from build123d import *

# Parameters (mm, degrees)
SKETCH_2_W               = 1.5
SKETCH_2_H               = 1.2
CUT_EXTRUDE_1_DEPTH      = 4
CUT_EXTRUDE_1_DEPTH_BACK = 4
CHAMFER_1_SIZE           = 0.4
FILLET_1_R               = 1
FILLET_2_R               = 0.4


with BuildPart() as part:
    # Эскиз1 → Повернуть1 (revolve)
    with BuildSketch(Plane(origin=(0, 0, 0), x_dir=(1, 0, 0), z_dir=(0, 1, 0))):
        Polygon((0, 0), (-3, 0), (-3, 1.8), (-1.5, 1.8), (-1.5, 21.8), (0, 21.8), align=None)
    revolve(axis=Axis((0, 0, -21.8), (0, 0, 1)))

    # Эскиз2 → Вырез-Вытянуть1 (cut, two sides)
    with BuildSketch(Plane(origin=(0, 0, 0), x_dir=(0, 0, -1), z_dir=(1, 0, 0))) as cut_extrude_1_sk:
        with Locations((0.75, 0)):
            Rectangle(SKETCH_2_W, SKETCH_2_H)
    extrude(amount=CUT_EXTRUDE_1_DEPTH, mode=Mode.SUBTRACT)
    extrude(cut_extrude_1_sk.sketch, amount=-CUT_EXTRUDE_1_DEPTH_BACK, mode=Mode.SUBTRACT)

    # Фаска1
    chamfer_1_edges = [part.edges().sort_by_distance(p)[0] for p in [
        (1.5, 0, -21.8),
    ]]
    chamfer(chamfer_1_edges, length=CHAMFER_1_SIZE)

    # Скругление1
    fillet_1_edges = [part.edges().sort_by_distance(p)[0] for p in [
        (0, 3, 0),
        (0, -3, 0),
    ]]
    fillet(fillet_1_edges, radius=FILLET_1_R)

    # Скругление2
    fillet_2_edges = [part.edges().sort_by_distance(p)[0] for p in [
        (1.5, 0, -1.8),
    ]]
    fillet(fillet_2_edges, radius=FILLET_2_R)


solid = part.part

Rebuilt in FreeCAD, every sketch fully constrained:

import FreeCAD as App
import Part
import Sketcher
from FreeCAD import Vector
Q = App.Units.Quantity


def edges_at(feature, points):
    """Names of the edges that pass closest to the given points."""
    edges = feature.Shape.Edges
    near = lambda p: min(range(len(edges)), key=lambda i: edges[i].distToShape(Part.Vertex(*p))[0])
    return sorted({f"Edge{near(p) + 1}" for p in points})


def add_polygon(sketch, points):
    """Adds a closed chain of lines whose ends are joined by coincident constraints."""
    first, n = sketch.GeometryCount, len(points)
    for a, b in zip(points, points[1:] + points[:1]):
        sketch.addGeometry(Part.LineSegment(App.Vector(*a, 0), App.Vector(*b, 0)), False)
    for i in range(n):
        sketch.addConstraint(Sketcher.Constraint("Coincident", first + i, 2, first + (i + 1) % n, 1))

doc = App.newDocument("Part")
body = doc.addObject("PartDesign::Body", "Body")

sketch1 = body.newObject("Sketcher::SketchObject", "Sketch")
sketch1.AttachmentSupport = (doc.getObject("XZ_Plane"), [""])
sketch1.MapMode = "FlatFace"
add_polygon(sketch1, [(-3, 0), (0, 0), (0, -21.8), (-1.5, -21.8), (-1.5, -1.8), (-3, -1.8)])
sketch1.addConstraint([
    Sketcher.Constraint("Horizontal", 0),
    Sketcher.Constraint("Vertical", 1),
    Sketcher.Constraint("Horizontal", 2),
    Sketcher.Constraint("Vertical", 3),
    Sketcher.Constraint("Horizontal", 4),
    Sketcher.Constraint("Vertical", 5),
    Sketcher.Constraint("Coincident", 0, 2, -1, 1),
    Sketcher.Constraint("Equal", 2, 4),
    Sketcher.Constraint("DistanceX", 0, 1, 0, 2, Q("3 mm")),
    Sketcher.Constraint("DistanceY", 3, 1, 3, 2, Q("20 mm")),
    Sketcher.Constraint("DistanceY", 1, 2, 1, 1, Q("21.8 mm")),
])
revolution = body.newObject("PartDesign::Revolution", "Revolution")
revolution.Profile = sketch1
revolution.ReferenceAxis = (sketch1, ["V_Axis"])
revolution.Angle = 360

sketch2 = body.newObject("Sketcher::SketchObject", "Sketch001")
sketch2.AttachmentSupport = (doc.getObject("YZ_Plane"), [""])
sketch2.MapMode = "FlatFace"
add_polygon(sketch2, [(0.6, 0), (-0.6, 0), (-0.6, -1.5), (0.6, -1.5)])
sketch2.addConstraint([
    Sketcher.Constraint("Horizontal", 0),
    Sketcher.Constraint("Vertical", 1),
    Sketcher.Constraint("Horizontal", 2),
    Sketcher.Constraint("Vertical", 3),
    Sketcher.Constraint("Symmetric", 0, 2, 3, 2, -1, 1),
    Sketcher.Constraint("DistanceX", 0, 2, 0, 1, Q("1.2 mm")),
    Sketcher.Constraint("DistanceY", 1, 2, 1, 1, Q("1.5 mm")),
])
pocket1 = body.newObject("PartDesign::Pocket", "Pocket")
pocket1.Profile = sketch2
pocket1.Type = "ThroughAll"
pocket1.Midplane = True
doc.recompute()

chamfer = body.newObject("PartDesign::Chamfer", "Chamfer")
chamfer.Base = (pocket1, edges_at(pocket1, [(1.5, 0, -21.8)]))
chamfer.Size = 0.4
doc.recompute()

fillet = body.newObject("PartDesign::Fillet", "Fillet")
fillet.Base = (chamfer, edges_at(chamfer, [(0, 3, 0), (0, -3, 0)]))
fillet.Radius = 1
doc.recompute()

fillet2 = body.newObject("PartDesign::Fillet", "Fillet001")
fillet2.Base = (fillet, edges_at(fillet, [(1.5, 0, -1.8)]))
fillet2.Radius = 0.4

doc.recompute()
